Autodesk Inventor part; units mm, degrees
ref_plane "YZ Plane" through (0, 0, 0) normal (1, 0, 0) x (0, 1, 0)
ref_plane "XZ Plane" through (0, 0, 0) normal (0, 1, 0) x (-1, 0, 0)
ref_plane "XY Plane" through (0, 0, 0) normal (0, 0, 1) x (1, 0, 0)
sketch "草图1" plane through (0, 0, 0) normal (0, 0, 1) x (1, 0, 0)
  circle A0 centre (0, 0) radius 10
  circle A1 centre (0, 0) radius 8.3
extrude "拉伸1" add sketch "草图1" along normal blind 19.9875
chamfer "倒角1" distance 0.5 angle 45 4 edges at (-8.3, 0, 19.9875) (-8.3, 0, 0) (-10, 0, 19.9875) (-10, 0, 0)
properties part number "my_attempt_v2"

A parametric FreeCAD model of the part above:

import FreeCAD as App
import Part
import Sketcher
from FreeCAD import Vector


def edges_at(feature, points):
    """Names of the edges that pass closest to the given points."""
    edges = feature.Shape.Edges
    near = lambda p: min(range(len(edges)), key=lambda i: edges[i].distToShape(Part.Vertex(*p))[0])
    return sorted({f"Edge{near(p) + 1}" for p in points})

doc = App.newDocument("Part")
body = doc.addObject("PartDesign::Body", "Body")

sketch1 = body.newObject("Sketcher::SketchObject", "Sketch")
sketch1.AttachmentSupport = (doc.getObject("XY_Plane"), [""])
sketch1.MapMode = "FlatFace"
sketch1.addGeometry(Part.Circle(Vector(0, 0, 0), Vector(0, 0, 1), 10), False)
sketch1.addGeometry(Part.Circle(Vector(0, 0, 0), Vector(0, 0, 1), 8.3), False)
sketch1.addConstraint(Sketcher.Constraint("Coincident", 0, 3, -1, 1))
sketch1.addConstraint(Sketcher.Constraint("Coincident", 1, 3, -1, 1))
sketch1.addConstraint(Sketcher.Constraint("Diameter", 0, 20.0))
sketch1.addConstraint(Sketcher.Constraint("Diameter", 1, 16.6))
pad1 = body.newObject("PartDesign::Pad", "Pad")
pad1.Profile = sketch1
pad1.Length = 19.9875
doc.recompute()

chamfer = body.newObject("PartDesign::Chamfer", "Chamfer")
chamfer.Base = (pad1, edges_at(pad1, [
    (-8.3, 0, 19.988),
    (-8.3, 0, 0),
    (-10, 0, 19.988),
    (-10, 0, 0),
]))
chamfer.Size = 0.5

doc.recompute()
